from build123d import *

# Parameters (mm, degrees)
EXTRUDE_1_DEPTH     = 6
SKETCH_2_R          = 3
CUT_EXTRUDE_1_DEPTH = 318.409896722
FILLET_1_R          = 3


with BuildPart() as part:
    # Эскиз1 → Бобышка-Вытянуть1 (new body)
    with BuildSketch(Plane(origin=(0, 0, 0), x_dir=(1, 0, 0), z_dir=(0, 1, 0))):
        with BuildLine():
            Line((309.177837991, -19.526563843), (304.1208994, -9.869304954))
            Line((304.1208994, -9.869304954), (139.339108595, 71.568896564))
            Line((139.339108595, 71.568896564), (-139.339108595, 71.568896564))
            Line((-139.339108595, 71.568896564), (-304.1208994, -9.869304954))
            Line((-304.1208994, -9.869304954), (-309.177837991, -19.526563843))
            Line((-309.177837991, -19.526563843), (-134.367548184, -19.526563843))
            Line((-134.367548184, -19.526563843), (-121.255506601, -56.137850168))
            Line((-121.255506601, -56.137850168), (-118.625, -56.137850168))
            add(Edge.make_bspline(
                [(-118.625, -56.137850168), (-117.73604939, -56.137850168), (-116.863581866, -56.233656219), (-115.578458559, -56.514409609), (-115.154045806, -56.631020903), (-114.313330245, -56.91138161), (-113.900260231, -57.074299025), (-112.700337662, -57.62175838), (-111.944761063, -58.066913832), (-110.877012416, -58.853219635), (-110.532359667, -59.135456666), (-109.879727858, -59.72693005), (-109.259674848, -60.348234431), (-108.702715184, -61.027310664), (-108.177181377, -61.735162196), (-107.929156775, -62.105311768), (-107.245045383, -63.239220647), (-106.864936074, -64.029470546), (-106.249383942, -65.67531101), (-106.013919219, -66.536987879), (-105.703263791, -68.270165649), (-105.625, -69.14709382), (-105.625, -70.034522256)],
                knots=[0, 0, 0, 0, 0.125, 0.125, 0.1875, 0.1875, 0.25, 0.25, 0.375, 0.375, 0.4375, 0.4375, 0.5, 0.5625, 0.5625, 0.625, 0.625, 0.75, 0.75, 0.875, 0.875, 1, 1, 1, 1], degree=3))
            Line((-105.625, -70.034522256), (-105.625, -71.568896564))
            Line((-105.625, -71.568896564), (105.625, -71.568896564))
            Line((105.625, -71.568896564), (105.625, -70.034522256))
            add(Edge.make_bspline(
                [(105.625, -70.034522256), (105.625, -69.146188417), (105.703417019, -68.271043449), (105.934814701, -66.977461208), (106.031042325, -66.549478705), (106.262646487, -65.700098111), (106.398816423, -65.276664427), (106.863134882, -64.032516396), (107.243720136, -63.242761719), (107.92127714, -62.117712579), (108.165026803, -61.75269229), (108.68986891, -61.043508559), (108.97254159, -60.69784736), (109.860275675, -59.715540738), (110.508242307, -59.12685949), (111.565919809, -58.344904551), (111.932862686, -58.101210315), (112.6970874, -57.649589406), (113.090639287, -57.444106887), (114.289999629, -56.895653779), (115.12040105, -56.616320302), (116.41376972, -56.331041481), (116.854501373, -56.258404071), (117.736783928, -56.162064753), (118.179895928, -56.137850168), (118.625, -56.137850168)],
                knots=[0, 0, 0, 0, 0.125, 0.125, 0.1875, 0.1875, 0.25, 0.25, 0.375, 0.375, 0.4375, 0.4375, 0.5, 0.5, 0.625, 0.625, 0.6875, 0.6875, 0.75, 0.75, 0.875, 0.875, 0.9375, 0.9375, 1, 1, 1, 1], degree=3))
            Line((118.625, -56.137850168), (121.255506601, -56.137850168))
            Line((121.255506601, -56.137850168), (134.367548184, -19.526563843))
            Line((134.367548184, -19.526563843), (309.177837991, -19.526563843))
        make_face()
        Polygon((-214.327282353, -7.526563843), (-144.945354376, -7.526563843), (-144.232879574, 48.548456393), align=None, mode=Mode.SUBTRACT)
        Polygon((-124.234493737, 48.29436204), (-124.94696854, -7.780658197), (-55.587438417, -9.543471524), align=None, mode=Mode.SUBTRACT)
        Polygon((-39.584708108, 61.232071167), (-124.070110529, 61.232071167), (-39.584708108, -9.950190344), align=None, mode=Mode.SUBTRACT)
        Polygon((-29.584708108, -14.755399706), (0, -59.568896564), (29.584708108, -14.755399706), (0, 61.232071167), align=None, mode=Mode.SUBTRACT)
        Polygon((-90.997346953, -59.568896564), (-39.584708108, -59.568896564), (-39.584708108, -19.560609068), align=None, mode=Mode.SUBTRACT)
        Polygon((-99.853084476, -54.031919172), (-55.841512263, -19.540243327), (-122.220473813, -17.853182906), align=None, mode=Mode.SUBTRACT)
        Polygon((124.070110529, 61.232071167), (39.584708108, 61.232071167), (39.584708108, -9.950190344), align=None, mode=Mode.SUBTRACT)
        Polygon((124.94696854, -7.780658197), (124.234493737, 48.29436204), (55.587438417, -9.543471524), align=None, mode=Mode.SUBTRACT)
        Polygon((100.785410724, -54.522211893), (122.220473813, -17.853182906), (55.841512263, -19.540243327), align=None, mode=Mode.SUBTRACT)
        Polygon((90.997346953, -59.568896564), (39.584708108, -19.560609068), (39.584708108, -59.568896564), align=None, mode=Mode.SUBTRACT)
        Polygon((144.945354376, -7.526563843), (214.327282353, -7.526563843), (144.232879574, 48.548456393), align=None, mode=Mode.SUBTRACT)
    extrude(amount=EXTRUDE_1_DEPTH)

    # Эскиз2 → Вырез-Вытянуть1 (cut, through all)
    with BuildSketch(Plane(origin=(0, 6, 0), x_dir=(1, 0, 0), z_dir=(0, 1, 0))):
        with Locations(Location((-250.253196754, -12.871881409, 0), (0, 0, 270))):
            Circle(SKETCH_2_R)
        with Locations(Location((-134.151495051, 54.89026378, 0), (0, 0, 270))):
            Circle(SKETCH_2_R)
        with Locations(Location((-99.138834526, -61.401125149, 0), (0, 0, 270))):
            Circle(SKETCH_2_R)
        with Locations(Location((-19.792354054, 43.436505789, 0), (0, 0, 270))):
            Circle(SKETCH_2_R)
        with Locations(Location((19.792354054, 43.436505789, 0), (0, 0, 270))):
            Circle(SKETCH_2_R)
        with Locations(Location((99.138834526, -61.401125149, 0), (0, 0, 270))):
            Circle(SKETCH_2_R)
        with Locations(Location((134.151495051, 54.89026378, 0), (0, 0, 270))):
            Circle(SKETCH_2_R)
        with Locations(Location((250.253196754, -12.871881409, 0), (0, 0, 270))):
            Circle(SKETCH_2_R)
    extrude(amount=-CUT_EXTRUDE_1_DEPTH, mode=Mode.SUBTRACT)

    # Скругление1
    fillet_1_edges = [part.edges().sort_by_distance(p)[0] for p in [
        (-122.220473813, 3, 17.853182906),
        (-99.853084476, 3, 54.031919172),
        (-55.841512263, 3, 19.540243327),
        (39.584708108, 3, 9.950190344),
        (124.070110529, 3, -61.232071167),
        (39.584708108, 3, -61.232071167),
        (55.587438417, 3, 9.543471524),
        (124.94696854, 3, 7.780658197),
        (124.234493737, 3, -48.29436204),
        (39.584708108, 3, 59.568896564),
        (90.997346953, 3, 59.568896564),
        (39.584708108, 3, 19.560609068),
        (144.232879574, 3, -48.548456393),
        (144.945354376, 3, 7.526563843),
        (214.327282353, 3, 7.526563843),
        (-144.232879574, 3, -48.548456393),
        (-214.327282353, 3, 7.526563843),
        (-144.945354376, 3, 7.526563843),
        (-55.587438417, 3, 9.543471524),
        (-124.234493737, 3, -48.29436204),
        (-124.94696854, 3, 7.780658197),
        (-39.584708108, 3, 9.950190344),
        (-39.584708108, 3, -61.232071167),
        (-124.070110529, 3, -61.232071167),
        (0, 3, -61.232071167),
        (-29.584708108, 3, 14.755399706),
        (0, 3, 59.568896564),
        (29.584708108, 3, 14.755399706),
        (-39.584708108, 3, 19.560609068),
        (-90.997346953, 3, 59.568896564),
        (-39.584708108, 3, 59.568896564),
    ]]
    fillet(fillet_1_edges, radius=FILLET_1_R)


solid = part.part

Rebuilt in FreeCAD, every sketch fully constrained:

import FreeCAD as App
import Part
import Sketcher


def edges_at(feature, points):
    """Names of the edges that pass closest to the given points."""
    edges = feature.Shape.Edges
    near = lambda p: min(range(len(edges)), key=lambda i: edges[i].distToShape(Part.Vertex(*p))[0])
    return sorted({f"Edge{near(p) + 1}" for p in points})

doc = App.newDocument("Part")
body = doc.addObject("PartDesign::Body", "Body")

# Sketch on XZ plane
sketch1 = doc.addObject("Sketcher::SketchObject", "Sketch")
body.addObject(sketch1)
sketch1.AttachmentSupport = (doc.XZ_Plane, [""])
sketch1.MapMode = "FlatFace"
sketch1.addGeometry([
    Part.LineSegment(App.Vector(309.177838, 19.526564, 0), App.Vector(304.120899, 9.869305, 0)),  # 0
    Part.LineSegment(App.Vector(304.120899, 9.869305, 0), App.Vector(139.339109, -71.568897, 0)),  # 1
    Part.LineSegment(App.Vector(139.339109, -71.568897, 0), App.Vector(-139.339109, -71.568897, 0)),  # 2
    Part.LineSegment(App.Vector(-139.339109, -71.568897, 0), App.Vector(-304.120899, 9.869305, 0)),  # 3
    Part.LineSegment(App.Vector(-304.120899, 9.869305, 0), App.Vector(-309.177838, 19.526564, 0)),  # 4
    Part.LineSegment(App.Vector(-309.177838, 19.526564, 0), App.Vector(-134.367548, 19.526564, 0)),  # 5
    Part.LineSegment(App.Vector(-134.367548, 19.526564, 0), App.Vector(-121.255507, 56.13785, 0)),  # 6
    Part.LineSegment(App.Vector(-121.255507, 56.13785, 0), App.Vector(-118.625, 56.13785, 0)),  # 7
    Part.BSplineCurve([App.Vector(-118.625, 56.13785, 0), App.Vector(-117.736049, 56.13785, 0), App.Vector(-116.863582, 56.233656, 0), App.Vector(-115.578459, 56.51441, 0), App.Vector(-115.154046, 56.631021, 0), App.Vector(-114.31333, 56.911382, 0), App.Vector(-113.90026, 57.074299, 0), App.Vector(-112.700338, 57.621758, 0), App.Vector(-111.944761, 58.066914, 0), App.Vector(-110.877012, 58.85322, 0), App.Vector(-110.53236, 59.135457, 0), App.Vector(-109.879728, 59.72693, 0), App.Vector(-109.259675, 60.348234, 0), App.Vector(-108.702715, 61.027311, 0), App.Vector(-108.177181, 61.735162, 0), App.Vector(-107.929157, 62.105312, 0), App.Vector(-107.245045, 63.239221, 0), App.Vector(-106.864936, 64.029471, 0), App.Vector(-106.249384, 65.675311, 0), App.Vector(-106.013919, 66.536988, 0), App.Vector(-105.703264, 68.270166, 0), App.Vector(-105.625, 69.147094, 0), App.Vector(-105.625, 70.034522, 0)], [4, 2, 2, 2, 2, 2, 1, 2, 2, 2, 2, 4], [0, 0.125, 0.1875, 0.25, 0.375, 0.4375, 0.5, 0.5625, 0.625, 0.75, 0.875, 1], False, 3, [1, 1, 1, 1, 1, 1, 1, 1, 1, 1, 1, 1, 1, 1, 1, 1, 1, 1, 1, 1, 1, 1, 1], False),  # 8
    Part.LineSegment(App.Vector(-105.625, 70.034522, 0), App.Vector(-105.625, 71.568897, 0)),  # 9
    Part.LineSegment(App.Vector(-105.625, 71.568897, 0), App.Vector(105.625, 71.568897, 0)),  # 10
    Part.LineSegment(App.Vector(105.625, 71.568897, 0), App.Vector(105.625, 70.034522, 0)),  # 11
    Part.BSplineCurve([App.Vector(105.625, 70.034522, 0), App.Vector(105.625, 69.146188, 0), App.Vector(105.703417, 68.271043, 0), App.Vector(105.934815, 66.977461, 0), App.Vector(106.031042, 66.549479, 0), App.Vector(106.262646, 65.700098, 0), App.Vector(106.398816, 65.276664, 0), App.Vector(106.863135, 64.032516, 0), App.Vector(107.24372, 63.242762, 0), App.Vector(107.921277, 62.117713, 0), App.Vector(108.165027, 61.752692, 0), App.Vector(108.689869, 61.043509, 0), App.Vector(108.972542, 60.697847, 0), App.Vector(109.860276, 59.715541, 0), App.Vector(110.508242, 59.126859, 0), App.Vector(111.56592, 58.344905, 0), App.Vector(111.932863, 58.10121, 0), App.Vector(112.697087, 57.649589, 0), App.Vector(113.090639, 57.444107, 0), App.Vector(114.29, 56.895654, 0), App.Vector(115.120401, 56.61632, 0), App.Vector(116.41377, 56.331041, 0), App.Vector(116.854501, 56.258404, 0), App.Vector(117.736784, 56.162065, 0), App.Vector(118.179896, 56.13785, 0), App.Vector(118.625, 56.13785, 0)], [4, 2, 2, 2, 2, 2, 2, 2, 2, 2, 2, 2, 4], [0, 0.125, 0.1875, 0.25, 0.375, 0.4375, 0.5, 0.625, 0.6875, 0.75, 0.875, 0.9375, 1], False, 3, [1, 1, 1, 1, 1, 1, 1, 1, 1, 1, 1, 1, 1, 1, 1, 1, 1, 1, 1, 1, 1, 1, 1, 1, 1, 1], False),  # 12
    Part.LineSegment(App.Vector(118.625, 56.13785, 0), App.Vector(121.255507, 56.13785, 0)),  # 13
    Part.LineSegment(App.Vector(121.255507, 56.13785, 0), App.Vector(134.367548, 19.526564, 0)),  # 14
    Part.LineSegment(App.Vector(134.367548, 19.526564, 0), App.Vector(309.177838, 19.526564, 0)),  # 15
    Part.LineSegment(App.Vector(-39.584708, 59.568897, 0), App.Vector(-90.997347, 59.568897, 0)),  # 16
    Part.LineSegment(App.Vector(-90.997347, 59.568897, 0), App.Vector(-39.584708, 19.560609, 0)),  # 17
    Part.LineSegment(App.Vector(-39.584708, 19.560609, 0), App.Vector(-39.584708, 59.568897, 0)),  # 18
    Part.LineSegment(App.Vector(-55.841512, 19.540243, 0), App.Vector(-99.853084, 54.031919, 0)),  # 19
    Part.LineSegment(App.Vector(-99.853084, 54.031919, 0), App.Vector(-122.220474, 17.853183, 0)),  # 20
    Part.LineSegment(App.Vector(-122.220474, 17.853183, 0), App.Vector(-55.841512, 19.540243, 0)),  # 21
    Part.LineSegment(App.Vector(39.584708, 19.560609, 0), App.Vector(90.997347, 59.568897, 0)),  # 22
    Part.LineSegment(App.Vector(90.997347, 59.568897, 0), App.Vector(39.584708, 59.568897, 0)),  # 23
    Part.LineSegment(App.Vector(39.584708, 59.568897, 0), App.Vector(39.584708, 19.560609, 0)),  # 24
    Part.LineSegment(App.Vector(122.220474, 17.853183, 0), App.Vector(100.785411, 54.522212, 0)),  # 25
    Part.LineSegment(App.Vector(100.785411, 54.522212, 0), App.Vector(55.841512, 19.540243, 0)),  # 26
    Part.LineSegment(App.Vector(55.841512, 19.540243, 0), App.Vector(122.220474, 17.853183, 0)),  # 27
    Part.LineSegment(App.Vector(-144.945354, 7.526564, 0), App.Vector(-214.327282, 7.526564, 0)),  # 28
    Part.LineSegment(App.Vector(-214.327282, 7.526564, 0), App.Vector(-144.23288, -48.548456, 0)),  # 29
    Part.LineSegment(App.Vector(-144.23288, -48.548456, 0), App.Vector(-144.945354, 7.526564, 0)),  # 30
    Part.LineSegment(App.Vector(0, 59.568897, 0), App.Vector(-29.584708, 14.7554, 0)),  # 31
    Part.LineSegment(App.Vector(-29.584708, 14.7554, 0), App.Vector(0, -61.232071, 0)),  # 32
    Part.LineSegment(App.Vector(0, -61.232071, 0), App.Vector(29.584708, 14.7554, 0)),  # 33
    Part.LineSegment(App.Vector(29.584708, 14.7554, 0), App.Vector(0, 59.568897, 0)),  # 34
    Part.LineSegment(App.Vector(-124.946969, 7.780658, 0), App.Vector(-124.234494, -48.294362, 0)),  # 35
    Part.LineSegment(App.Vector(-124.234494, -48.294362, 0), App.Vector(-55.587438, 9.543472, 0)),  # 36
    Part.LineSegment(App.Vector(-55.587438, 9.543472, 0), App.Vector(-124.946969, 7.780658, 0)),  # 37
    Part.LineSegment(App.Vector(-124.070111, -61.232071, 0), App.Vector(-39.584708, -61.232071, 0)),  # 38
    Part.LineSegment(App.Vector(-39.584708, -61.232071, 0), App.Vector(-39.584708, 9.95019, 0)),  # 39
    Part.LineSegment(App.Vector(-39.584708, 9.95019, 0), App.Vector(-124.070111, -61.232071, 0)),  # 40
    Part.LineSegment(App.Vector(124.234494, -48.294362, 0), App.Vector(124.946969, 7.780658, 0)),  # 41
    Part.LineSegment(App.Vector(124.946969, 7.780658, 0), App.Vector(55.587438, 9.543472, 0)),  # 42
    Part.LineSegment(App.Vector(55.587438, 9.543472, 0), App.Vector(124.234494, -48.294362, 0)),  # 43
    Part.LineSegment(App.Vector(39.584708, -61.232071, 0), App.Vector(124.070111, -61.232071, 0)),  # 44
    Part.LineSegment(App.Vector(124.070111, -61.232071, 0), App.Vector(39.584708, 9.95019, 0)),  # 45
    Part.LineSegment(App.Vector(39.584708, 9.95019, 0), App.Vector(39.584708, -61.232071, 0)),  # 46
    Part.LineSegment(App.Vector(214.327282, 7.526564, 0), App.Vector(144.945354, 7.526564, 0)),  # 47
    Part.LineSegment(App.Vector(144.945354, 7.526564, 0), App.Vector(144.23288, -48.548456, 0)),  # 48
    Part.LineSegment(App.Vector(144.23288, -48.548456, 0), App.Vector(214.327282, 7.526564, 0)),  # 49
], False)
sketch1.addConstraint([
    Sketcher.Constraint("Block", 8),
    Sketcher.Constraint("Block", 12),
    Sketcher.Constraint("Coincident", 0, 2, 1, 1),
    Sketcher.Constraint("Coincident", 1, 2, 2, 1),
    Sketcher.Constraint("Coincident", 2, 2, 3, 1),
    Sketcher.Constraint("Coincident", 3, 2, 4, 1),
    Sketcher.Constraint("Coincident", 4, 2, 5, 1),
    Sketcher.Constraint("Coincident", 5, 2, 6, 1),
    Sketcher.Constraint("Coincident", 6, 2, 7, 1),
    Sketcher.Constraint("Coincident", 7, 2, 8, 1),
    Sketcher.Constraint("Coincident", 8, 2, 9, 1),
    Sketcher.Constraint("Coincident", 9, 2, 10, 1),
    Sketcher.Constraint("Coincident", 10, 2, 11, 1),
    Sketcher.Constraint("Coincident", 11, 2, 12, 1),
    Sketcher.Constraint("Coincident", 12, 2, 13, 1),
    Sketcher.Constraint("Coincident", 13, 2, 14, 1),
    Sketcher.Constraint("Coincident", 14, 2, 15, 1),
    Sketcher.Constraint("Coincident", 15, 2, 0, 1),
    Sketcher.Constraint("Coincident", 16, 2, 17, 1),
    Sketcher.Constraint("Coincident", 17, 2, 18, 1),
    Sketcher.Constraint("Coincident", 18, 2, 16, 1),
    Sketcher.Constraint("Coincident", 19, 2, 20, 1),
    Sketcher.Constraint("Coincident", 20, 2, 21, 1),
    Sketcher.Constraint("Coincident", 21, 2, 19, 1),
    Sketcher.Constraint("Coincident", 22, 2, 23, 1),
    Sketcher.Constraint("Coincident", 23, 2, 24, 1),
    Sketcher.Constraint("Coincident", 24, 2, 22, 1),
    Sketcher.Constraint("Coincident", 25, 2, 26, 1),
    Sketcher.Constraint("Coincident", 26, 2, 27, 1),
    Sketcher.Constraint("Coincident", 27, 2, 25, 1),
    Sketcher.Constraint("Coincident", 28, 2, 29, 1),
    Sketcher.Constraint("Coincident", 29, 2, 30, 1),
    Sketcher.Constraint("Coincident", 30, 2, 28, 1),
    Sketcher.Constraint("Coincident", 31, 2, 32, 1),
    Sketcher.Constraint("Coincident", 32, 2, 33, 1),
    Sketcher.Constraint("Coincident", 33, 2, 34, 1),
    Sketcher.Constraint("Coincident", 34, 2, 31, 1),
    Sketcher.Constraint("Coincident", 35, 2, 36, 1),
    Sketcher.Constraint("Coincident", 36, 2, 37, 1),
    Sketcher.Constraint("Coincident", 37, 2, 35, 1),
    Sketcher.Constraint("Coincident", 38, 2, 39, 1),
    Sketcher.Constraint("Coincident", 39, 2, 40, 1),
    Sketcher.Constraint("Coincident", 40, 2, 38, 1),
    Sketcher.Constraint("Coincident", 41, 2, 42, 1),
    Sketcher.Constraint("Coincident", 42, 2, 43, 1),
    Sketcher.Constraint("Coincident", 43, 2, 41, 1),
    Sketcher.Constraint("Coincident", 44, 2, 45, 1),
    Sketcher.Constraint("Coincident", 45, 2, 46, 1),
    Sketcher.Constraint("Coincident", 46, 2, 44, 1),
    Sketcher.Constraint("Coincident", 47, 2, 48, 1),
    Sketcher.Constraint("Coincident", 48, 2, 49, 1),
    Sketcher.Constraint("Coincident", 49, 2, 47, 1),
    Sketcher.Constraint("Horizontal", 2),
    Sketcher.Constraint("Horizontal", 5),
    Sketcher.Constraint("Horizontal", 7),
    Sketcher.Constraint("Vertical", 9),
    Sketcher.Constraint("Horizontal", 10),
    Sketcher.Constraint("Vertical", 11),
    Sketcher.Constraint("Horizontal", 13),
    Sketcher.Constraint("Horizontal", 15),
    Sketcher.Constraint("Horizontal", 16),
    Sketcher.Constraint("Vertical", 18),
    Sketcher.Constraint("Horizontal", 23),
    Sketcher.Constraint("Vertical", 24),
    Sketcher.Constraint("Horizontal", 28),
    Sketcher.Constraint("Horizontal", 38),
    Sketcher.Constraint("Vertical", 39),
    Sketcher.Constraint("Horizontal", 44),
    Sketcher.Constraint("Vertical", 46),
    Sketcher.Constraint("Horizontal", 47),
    Sketcher.Constraint("Symmetric", 0, 2, 3, 2, -2),
    Sketcher.Constraint("Symmetric", 5, 2, 14, 2, -2),
    Sketcher.Constraint("Symmetric", 16, 2, 22, 2, -2),
    Sketcher.Constraint("Symmetric", 17, 2, 24, 2, -2),
    Sketcher.Constraint("Symmetric", 21, 2, 26, 2, -2),
    Sketcher.Constraint("Symmetric", 20, 2, 27, 2, -2),
    Sketcher.Constraint("Symmetric", 31, 2, 33, 2, -2),
    Sketcher.Constraint("Symmetric", 37, 2, 41, 2, -2),
    Sketcher.Constraint("Symmetric", 36, 2, 42, 2, -2),
    Sketcher.Constraint("Symmetric", 35, 2, 43, 2, -2),
    Sketcher.Constraint("Symmetric", 40, 2, 44, 2, -2),
    Sketcher.Constraint("Symmetric", 39, 2, 45, 2, -2),
    Sketcher.Constraint("Symmetric", 30, 2, 47, 2, -2),
    Sketcher.Constraint("Symmetric", 29, 2, 48, 2, -2),
    Sketcher.Constraint("PointOnObject", 32, 2, -2),
    Sketcher.Constraint("PointOnObject", 34, 2, -2),
    Sketcher.Constraint("Parallel", 30, 35),
    Sketcher.Constraint("Parallel", 21, 37),
    Sketcher.Constraint("Parallel", 36, 40),
    Sketcher.Constraint("Horizontal", 23, 2, 34, 2),
    Sketcher.Constraint("Horizontal", 32, 2, 38, 2),
    Sketcher.Constraint("Vertical", 18, 2, 38, 2),
    Sketcher.Constraint("Equal", 7, 13),
    Sketcher.Constraint("Equal", 5, 15),
    Sketcher.Constraint("Equal", 28, 47),
    Sketcher.Constraint("Equal", 1, 3),
    Sketcher.Constraint("Equal", 30, 35),
    Sketcher.Constraint("Equal", 29, 36),
    Sketcher.Constraint("DistanceY", 16, 2, 9, 2, 12.0),
    Sketcher.Constraint("DistanceY", 28, 2, 5, 2, 12.0),
    Sketcher.Constraint("DistanceX", 17, 2, 31, 2, 10.0),
    Sketcher.Constraint("DistanceX", 2, 2, 40, 2, 15.268998),
    Sketcher.Constraint("DistanceX", 5, 1, 5, 2, 174.81029),
    Sketcher.Constraint("DistanceX", 16, 2, 16, 1, 51.412639),
    Sketcher.Constraint("DistanceY", 39, 1, 39, 2, 71.182262),
    Sketcher.Constraint("DistanceX", -1, 1, 0, 2, 304.120899),
    Sketcher.Constraint("DistanceY", -1, 1, 31, 2, 14.7554),
    Sketcher.Constraint("DistanceY", 1, 2, 0, 2, 81.438202),
    Sketcher.Constraint("DistanceX", 2, 2, 6, 2, 18.083602),
    Sketcher.Constraint("DistanceX", 5, 2, 16, 2, 43.370201),
    Sketcher.Constraint("DistanceX", 6, 2, 17, 2, 81.670798),
    Sketcher.Constraint("DistanceX", 26, 2, 25, 2, 44.943898),
    Sketcher.Constraint("Distance", 0, 10.901159),
    Sketcher.Constraint("Distance", 1, 183.80756),
    Sketcher.Constraint("Distance", 19, 55.916851),
    Sketcher.Constraint("Distance", 25, 42.474458),
    Sketcher.Constraint("Distance", 26, 56.953421),
    Sketcher.Constraint("Distance", 29, 89.76432),
    Sketcher.Constraint("Distance", 32, 81.543551),
    Sketcher.Constraint("DistanceX", 28, 2, 28, 1, 69.381928),
    Sketcher.Constraint("DistanceY", 9, 1, 9, 2, 1.534374),
    Sketcher.Constraint("DistanceY", 18, 1, 18, 2, 40.008287),
    Sketcher.Constraint("DistanceY", -1, 1, 19, 2, 54.031919),
    Sketcher.Constraint("DistanceX", -1, 1, 25, 2, 100.785411),
    Sketcher.Constraint("DistanceY", -1, 1, 25, 2, 54.522212),
    Sketcher.Constraint("DistanceX", 29, 2, -1, 1, 144.23288),
    Sketcher.Constraint("DistanceX", 36, 2, -1, 1, 55.587438),
    Sketcher.Constraint("DistanceY", -1, 1, 36, 2, 9.543472),
    Sketcher.Constraint("DistanceX", 37, 2, -1, 1, 124.946969),
    Sketcher.Constraint("DistanceY", 3, 2, 9, 2, 61.699592),
])
pad1 = doc.addObject("PartDesign::Pad", "Pad")
body.addObject(pad1)
pad1.Profile = sketch1
pad1.Length = 6
pad1.Reversed = True

# Sketch on XZ plane
sketch2 = doc.addObject("Sketcher::SketchObject", "Sketch001")
body.addObject(sketch2)
sketch2.AttachmentSupport = (doc.XZ_Plane, [""])
sketch2.MapMode = "FlatFace"
sketch2.AttachmentOffset = App.Placement(App.Vector(0, 0, -6), App.Rotation())
sketch2.addGeometry([
    Part.Circle(App.Vector(-250.253197, 12.871881, 0), App.Vector(0, 0, 1), 3),  # 0
    Part.Circle(App.Vector(-134.151495, -54.890264, 0), App.Vector(0, 0, 1), 3),  # 1
    Part.Circle(App.Vector(-99.138835, 61.401125, 0), App.Vector(0, 0, 1), 3),  # 2
    Part.Circle(App.Vector(-19.792354, -43.436506, 0), App.Vector(0, 0, 1), 3),  # 3
    Part.Circle(App.Vector(19.792354, -43.436506, 0), App.Vector(0, 0, 1), 3),  # 4
    Part.Circle(App.Vector(99.138835, 61.401125, 0), App.Vector(0, 0, 1), 3),  # 5
    Part.Circle(App.Vector(134.151495, -54.890264, 0), App.Vector(0, 0, 1), 3),  # 6
    Part.Circle(App.Vector(250.253197, 12.871881, 0), App.Vector(0, 0, 1), 3),  # 7
], False)
sketch2.addConstraint([
    Sketcher.Constraint("Equal", 0, 1),
    Sketcher.Constraint("Equal", 1, 2),
    Sketcher.Constraint("Equal", 2, 3),
    Sketcher.Constraint("Equal", 3, 4),
    Sketcher.Constraint("Equal", 4, 5),
    Sketcher.Constraint("Equal", 5, 6),
    Sketcher.Constraint("Equal", 6, 7),
    Sketcher.Constraint("Symmetric", 3, 3, 4, 3, -2),
    Sketcher.Constraint("Symmetric", 2, 3, 5, 3, -2),
    Sketcher.Constraint("Symmetric", 1, 3, 6, 3, -2),
    Sketcher.Constraint("Symmetric", 0, 3, 7, 3, -2),
    Sketcher.Constraint("Diameter", 0, 6.0),
    Sketcher.Constraint("DistanceX", 0, 3, 1, 3, 116.101702),
    Sketcher.Constraint("DistanceY", -1, 1, 0, 3, 12.871881),
    Sketcher.Constraint("DistanceX", 1, 3, 2, 3, 35.012661),
    Sketcher.Constraint("DistanceY", 1, 3, 2, 3, 116.291389),
    Sketcher.Constraint("DistanceX", 1, 3, 3, 3, 114.359141),
    Sketcher.Constraint("DistanceY", 3, 3, 2, 3, 104.837631),
    Sketcher.Constraint("DistanceX", 3, 3, 4, 3, 39.584708),
    Sketcher.Constraint("DistanceY", 1, 3, -1, 1, 54.890264),
])
pocket1 = doc.addObject("PartDesign::Pocket", "Pocket")
body.addObject(pocket1)
pocket1.Profile = sketch2
pocket1.Type = "ThroughAll"
pocket1.Reversed = True
doc.recompute()

fillet = doc.addObject("PartDesign::Fillet", "Fillet")
body.addObject(fillet)
fillet.Base = (pocket1, edges_at(pocket1, [
    (-122.22, 3, 17.853),
    (-99.853, 3, 54.032),
    (-55.842, 3, 19.54),
    (39.585, 3, 9.95),
    (124.07, 3, -61.232),
    (39.585, 3, -61.232),
    (55.587, 3, 9.543),
    (124.947, 3, 7.781),
    (124.234, 3, -48.294),
    (39.585, 3, 59.569),
    (90.997, 3, 59.569),
    (39.585, 3, 19.561),
    (144.233, 3, -48.548),
    (144.945, 3, 7.527),
    (214.327, 3, 7.527),
    (-144.233, 3, -48.548),
    (-214.327, 3, 7.527),
    (-144.945, 3, 7.527),
    (-55.587, 3, 9.543),
    (-124.234, 3, -48.294),
    (-124.947, 3, 7.781),
    (-39.585, 3, 9.95),
    (-39.585, 3, -61.232),
    (-124.07, 3, -61.232),
    (0, 3, -61.232),
    (-29.585, 3, 14.755),
    (0, 3, 59.569),
    (29.585, 3, 14.755),
    (-39.585, 3, 19.561),
    (-90.997, 3, 59.569),
    (-39.585, 3, 59.569),
]))
fillet.Radius = 3

doc.recompute()
